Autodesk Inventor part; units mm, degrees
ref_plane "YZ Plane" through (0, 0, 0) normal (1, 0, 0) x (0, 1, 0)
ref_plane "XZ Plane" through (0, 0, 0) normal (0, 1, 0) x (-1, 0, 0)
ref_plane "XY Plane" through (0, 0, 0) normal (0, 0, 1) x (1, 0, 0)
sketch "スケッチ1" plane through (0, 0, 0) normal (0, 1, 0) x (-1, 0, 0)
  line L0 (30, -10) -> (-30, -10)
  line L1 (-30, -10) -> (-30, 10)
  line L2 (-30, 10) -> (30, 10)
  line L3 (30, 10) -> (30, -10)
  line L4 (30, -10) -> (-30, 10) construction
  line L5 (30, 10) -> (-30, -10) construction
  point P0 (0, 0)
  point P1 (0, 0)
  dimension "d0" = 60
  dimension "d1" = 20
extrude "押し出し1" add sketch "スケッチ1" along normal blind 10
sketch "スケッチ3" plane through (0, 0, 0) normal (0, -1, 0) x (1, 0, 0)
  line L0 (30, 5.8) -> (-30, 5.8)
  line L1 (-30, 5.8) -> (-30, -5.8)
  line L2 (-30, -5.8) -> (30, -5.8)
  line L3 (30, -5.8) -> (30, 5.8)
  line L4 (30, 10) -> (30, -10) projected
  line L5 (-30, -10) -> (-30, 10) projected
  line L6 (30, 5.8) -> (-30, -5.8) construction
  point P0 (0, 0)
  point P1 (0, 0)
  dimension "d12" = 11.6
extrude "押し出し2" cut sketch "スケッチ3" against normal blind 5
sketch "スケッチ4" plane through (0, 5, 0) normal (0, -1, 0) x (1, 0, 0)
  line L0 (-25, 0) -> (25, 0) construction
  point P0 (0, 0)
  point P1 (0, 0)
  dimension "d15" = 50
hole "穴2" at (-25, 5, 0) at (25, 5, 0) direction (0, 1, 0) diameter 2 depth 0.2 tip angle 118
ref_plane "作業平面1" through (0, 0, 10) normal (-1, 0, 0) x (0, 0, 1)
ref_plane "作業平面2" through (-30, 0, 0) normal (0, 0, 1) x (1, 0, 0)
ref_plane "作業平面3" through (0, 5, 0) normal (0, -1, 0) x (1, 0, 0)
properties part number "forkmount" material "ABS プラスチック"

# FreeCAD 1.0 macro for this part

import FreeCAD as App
import Part
import Sketcher


def add_polygon(sketch, points):
    """Adds a closed chain of lines whose ends are joined by coincident constraints."""
    first, n = sketch.GeometryCount, len(points)
    for a, b in zip(points, points[1:] + points[:1]):
        sketch.addGeometry(Part.LineSegment(App.Vector(*a, 0), App.Vector(*b, 0)), False)
    for i in range(n):
        sketch.addConstraint(Sketcher.Constraint("Coincident", first + i, 2, first + (i + 1) % n, 1))

doc = App.newDocument("Part")
params = doc.addObject("Spreadsheet::Sheet", "Params")
for row, (alias, value) in enumerate([
    ("sketch1_width", "60 mm"),
    ("sketch1_height", "20 mm"),
    ("pad1_length", "10 mm"),
    ("sketch2_height", "11.6 mm"),
    ("sketch2_width", "60 mm"),
    ("pocket1_length", "5 mm"),
    ("sketch3_diameter", "2 mm"),
    ("hole_diameter", "2 mm"),
    ("hole_depth", "0.2 mm"),
], start=1):
    params.set(f"A{row}", alias)
    params.set(f"B{row}", "=" + value)
    params.setAlias(f"B{row}", alias)

body = doc.addObject("PartDesign::Body", "Body")

# Sketch on XZ plane
sketch1 = body.newObject("Sketcher::SketchObject", "Sketch")
sketch1.AttachmentSupport = (doc.getObject("XZ_Plane"), [""])
sketch1.MapMode = "FlatFace"
add_polygon(sketch1, [(30, -10), (-30, -10), (-30, 10), (30, 10)])  # lines 0-3
sketch1.addConstraint([
    Sketcher.Constraint("Horizontal", 0),
    Sketcher.Constraint("Vertical", 1),
    Sketcher.Constraint("Horizontal", 2),
    Sketcher.Constraint("Vertical", 3),
    Sketcher.Constraint("Symmetric", 0, 2, 2, 2, -1, 1),
    Sketcher.Constraint("DistanceX", 0, 2, 0, 1, 60.0),
    Sketcher.Constraint("DistanceY", 1, 1, 1, 2, 20.0),
])
sketch1.setExpression("Constraints[9]", "Params.sketch1_width")
sketch1.setExpression("Constraints[10]", "Params.sketch1_height")
pad1 = body.newObject("PartDesign::Pad", "Pad")
pad1.Profile = sketch1
pad1.setExpression("Length", "Params.pad1_length")
pad1.Reversed = True

# Sketch on XZ plane
sketch2 = body.newObject("Sketcher::SketchObject", "Sketch001")
sketch2.AttachmentSupport = (doc.getObject("XZ_Plane"), [""])
sketch2.MapMode = "FlatFace"
add_polygon(sketch2, [(30, -5.8), (30, 5.8), (-30, 5.8), (-30, -5.8)])  # lines 0-3
sketch2.addConstraint([
    Sketcher.Constraint("Vertical", 0),
    Sketcher.Constraint("Horizontal", 1),
    Sketcher.Constraint("Vertical", 2),
    Sketcher.Constraint("Horizontal", 3),
    Sketcher.Constraint("Symmetric", 0, 2, 2, 2, -1, 1),
    Sketcher.Constraint("DistanceY", 0, 1, 0, 2, 11.6),
    Sketcher.Constraint("DistanceX", 1, 2, 1, 1, 60.0),
])
sketch2.setExpression("Constraints[9]", "Params.sketch2_height")
sketch2.setExpression("Constraints[10]", "Params.sketch2_width")
pocket1 = body.newObject("PartDesign::Pocket", "Pocket")
pocket1.Profile = sketch2
pocket1.setExpression("Length", "Params.pocket1_length")

# Sketch on XZ plane
sketch3 = body.newObject("Sketcher::SketchObject", "Sketch002")
sketch3.AttachmentSupport = (doc.getObject("XZ_Plane"), [""])
sketch3.MapMode = "FlatFace"
sketch3.AttachmentOffset = App.Placement(App.Vector(0, 0, -5), App.Rotation())
sketch3.addGeometry([
    Part.Circle(App.Vector(-25, 0, 0), App.Vector(0, 0, 1), 1),
    Part.Circle(App.Vector(25, 0, 0), App.Vector(0, 0, 1), 1),
], False)
sketch3.addConstraint([
    Sketcher.Constraint("Equal", 0, 1),
    Sketcher.Constraint("Symmetric", 0, 3, 1, 3, -1, 1),
    Sketcher.Constraint("PointOnObject", 0, 3, -1),
    Sketcher.Constraint("Diameter", 0, 2.0),
    Sketcher.Constraint("DistanceX", 0, 3, -1, 1, 25.0),
])
sketch3.setExpression("Constraints[3]", "Params.sketch3_diameter")
doc.recompute()
hole = body.newObject("PartDesign::Hole", "Hole")
hole.Profile = sketch3
hole.ThreadType = "None"
hole.setExpression("Diameter", "Params.hole_diameter")
hole.DepthType = "Dimension"
hole.setExpression("Depth", "Params.hole_depth")
hole.DrillPoint = "Angled"
hole.DrillPointAngle = 118

doc.recompute()
